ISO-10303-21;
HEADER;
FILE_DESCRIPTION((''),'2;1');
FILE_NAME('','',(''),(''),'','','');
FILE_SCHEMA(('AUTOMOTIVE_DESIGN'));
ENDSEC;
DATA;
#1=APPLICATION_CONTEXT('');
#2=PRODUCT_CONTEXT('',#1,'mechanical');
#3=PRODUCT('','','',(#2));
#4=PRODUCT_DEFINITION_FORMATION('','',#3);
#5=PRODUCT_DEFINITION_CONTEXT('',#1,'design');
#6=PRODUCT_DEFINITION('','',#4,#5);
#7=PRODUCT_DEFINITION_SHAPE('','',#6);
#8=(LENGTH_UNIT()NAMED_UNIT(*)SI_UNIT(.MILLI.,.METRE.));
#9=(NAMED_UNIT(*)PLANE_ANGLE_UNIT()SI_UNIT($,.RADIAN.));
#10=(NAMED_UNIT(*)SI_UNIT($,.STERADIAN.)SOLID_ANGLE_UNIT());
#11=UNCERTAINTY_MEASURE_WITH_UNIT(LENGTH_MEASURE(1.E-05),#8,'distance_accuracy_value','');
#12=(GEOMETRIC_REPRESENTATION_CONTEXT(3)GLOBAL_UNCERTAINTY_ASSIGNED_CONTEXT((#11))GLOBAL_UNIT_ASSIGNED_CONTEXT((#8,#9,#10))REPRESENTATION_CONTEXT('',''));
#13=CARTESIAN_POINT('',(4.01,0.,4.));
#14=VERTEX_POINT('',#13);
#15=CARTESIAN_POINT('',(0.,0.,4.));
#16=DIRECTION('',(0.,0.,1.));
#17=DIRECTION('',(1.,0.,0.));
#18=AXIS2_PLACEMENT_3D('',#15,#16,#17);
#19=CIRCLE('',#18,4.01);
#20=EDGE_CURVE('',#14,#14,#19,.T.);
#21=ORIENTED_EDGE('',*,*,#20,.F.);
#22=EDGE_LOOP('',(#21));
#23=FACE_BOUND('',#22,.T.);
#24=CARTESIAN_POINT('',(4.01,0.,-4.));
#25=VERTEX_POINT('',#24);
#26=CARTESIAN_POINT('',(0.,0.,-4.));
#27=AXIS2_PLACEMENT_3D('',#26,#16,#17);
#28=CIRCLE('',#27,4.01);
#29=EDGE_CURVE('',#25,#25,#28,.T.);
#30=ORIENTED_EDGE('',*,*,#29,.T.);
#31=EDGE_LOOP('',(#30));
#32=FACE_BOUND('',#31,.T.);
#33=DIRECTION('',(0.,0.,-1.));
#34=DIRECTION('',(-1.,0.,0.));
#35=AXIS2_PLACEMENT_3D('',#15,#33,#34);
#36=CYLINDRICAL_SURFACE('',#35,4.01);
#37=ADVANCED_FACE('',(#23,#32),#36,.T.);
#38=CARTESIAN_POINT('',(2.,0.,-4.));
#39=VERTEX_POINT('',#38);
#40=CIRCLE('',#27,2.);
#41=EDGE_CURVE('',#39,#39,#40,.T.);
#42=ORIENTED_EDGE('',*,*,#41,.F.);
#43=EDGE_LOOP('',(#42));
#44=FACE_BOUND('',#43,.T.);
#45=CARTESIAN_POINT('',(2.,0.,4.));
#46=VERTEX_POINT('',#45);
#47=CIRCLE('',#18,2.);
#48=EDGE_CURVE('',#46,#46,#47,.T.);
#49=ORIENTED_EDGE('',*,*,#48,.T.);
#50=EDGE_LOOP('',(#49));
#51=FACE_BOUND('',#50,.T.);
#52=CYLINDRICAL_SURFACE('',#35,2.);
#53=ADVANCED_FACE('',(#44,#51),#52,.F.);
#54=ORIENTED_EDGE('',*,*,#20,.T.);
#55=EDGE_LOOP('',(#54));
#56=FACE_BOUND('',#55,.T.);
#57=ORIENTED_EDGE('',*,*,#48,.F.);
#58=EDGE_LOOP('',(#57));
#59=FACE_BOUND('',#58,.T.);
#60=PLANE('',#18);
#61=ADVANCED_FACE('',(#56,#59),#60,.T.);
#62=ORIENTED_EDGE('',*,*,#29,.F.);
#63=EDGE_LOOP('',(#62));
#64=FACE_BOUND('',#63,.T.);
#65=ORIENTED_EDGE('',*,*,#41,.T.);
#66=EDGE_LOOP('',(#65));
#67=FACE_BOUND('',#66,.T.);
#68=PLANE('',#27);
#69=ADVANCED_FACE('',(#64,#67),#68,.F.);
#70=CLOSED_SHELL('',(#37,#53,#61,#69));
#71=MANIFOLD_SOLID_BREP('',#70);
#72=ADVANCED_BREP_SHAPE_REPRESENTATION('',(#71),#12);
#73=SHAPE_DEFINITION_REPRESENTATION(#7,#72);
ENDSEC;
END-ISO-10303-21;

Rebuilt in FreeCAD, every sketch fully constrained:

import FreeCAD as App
import Part
import Sketcher
Q = App.Units.Quantity

doc = App.newDocument("Part")
body = doc.addObject("PartDesign::Body", "Body")

sketch1 = doc.addObject("Sketcher::SketchObject", "Sketch")
body.addObject(sketch1)
sketch1.AttachmentSupport = (doc.XY_Plane, [""])
sketch1.MapMode = "FlatFace"
sketch1.addGeometry(Part.Circle(App.Vector(0, 0, 0), App.Vector(0, 0, 1), 4), False)
sketch1.addGeometry(Part.Circle(App.Vector(0, 0, 0), App.Vector(0, 0, 1), 2), False)
sketch1.addConstraint(Sketcher.Constraint("Coincident", 0, 3, -1, 1))
sketch1.addConstraint(Sketcher.Constraint("Coincident", 1, 3, -1, 1))
sketch1.addConstraint(Sketcher.Constraint("Diameter", 1, Q("4 mm")))
sketch1.addConstraint(Sketcher.Constraint("Diameter", 0, Q("8.02 mm")))
pad1 = doc.addObject("PartDesign::Pad", "Pad")
body.addObject(pad1)
pad1.Profile = sketch1
pad1.Length = 8
pad1.Midplane = True

doc.recompute()
